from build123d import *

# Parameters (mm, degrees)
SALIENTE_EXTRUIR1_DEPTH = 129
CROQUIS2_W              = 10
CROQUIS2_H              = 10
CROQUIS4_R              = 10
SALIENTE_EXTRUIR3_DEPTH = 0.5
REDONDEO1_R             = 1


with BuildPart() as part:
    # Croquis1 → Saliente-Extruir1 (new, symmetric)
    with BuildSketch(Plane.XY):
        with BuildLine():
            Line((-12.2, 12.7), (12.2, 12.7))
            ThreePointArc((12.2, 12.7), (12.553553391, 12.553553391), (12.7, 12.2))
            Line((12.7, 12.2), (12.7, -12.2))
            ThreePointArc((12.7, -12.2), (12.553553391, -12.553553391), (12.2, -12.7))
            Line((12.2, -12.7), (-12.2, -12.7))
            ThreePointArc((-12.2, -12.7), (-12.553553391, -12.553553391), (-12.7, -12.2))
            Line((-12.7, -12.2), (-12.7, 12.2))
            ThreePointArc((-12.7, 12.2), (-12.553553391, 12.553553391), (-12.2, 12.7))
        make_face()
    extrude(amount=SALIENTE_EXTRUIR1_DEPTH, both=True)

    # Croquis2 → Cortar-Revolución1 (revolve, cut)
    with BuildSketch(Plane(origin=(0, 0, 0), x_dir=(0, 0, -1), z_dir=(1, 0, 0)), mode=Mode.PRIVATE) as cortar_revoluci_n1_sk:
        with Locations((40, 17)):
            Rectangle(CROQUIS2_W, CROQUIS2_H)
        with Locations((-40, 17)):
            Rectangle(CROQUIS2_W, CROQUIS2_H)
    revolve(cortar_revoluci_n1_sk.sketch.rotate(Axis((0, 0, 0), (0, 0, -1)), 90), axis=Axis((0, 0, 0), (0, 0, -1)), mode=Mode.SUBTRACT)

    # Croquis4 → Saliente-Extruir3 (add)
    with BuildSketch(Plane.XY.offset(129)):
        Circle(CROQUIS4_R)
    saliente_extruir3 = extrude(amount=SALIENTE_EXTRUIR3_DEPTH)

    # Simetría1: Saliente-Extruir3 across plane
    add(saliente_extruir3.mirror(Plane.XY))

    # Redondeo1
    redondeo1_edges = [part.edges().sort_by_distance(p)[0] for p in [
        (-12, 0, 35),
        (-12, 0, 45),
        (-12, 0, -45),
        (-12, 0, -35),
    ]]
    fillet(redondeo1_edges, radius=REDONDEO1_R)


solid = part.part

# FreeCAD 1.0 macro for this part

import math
import FreeCAD as App
import Part
import Sketcher
from FreeCAD import Vector


def edges_at(feature, points):
    """Names of the edges that pass closest to the given points."""
    edges = feature.Shape.Edges
    near = lambda p: min(range(len(edges)), key=lambda i: edges[i].distToShape(Part.Vertex(*p))[0])
    return sorted({f"Edge{near(p) + 1}" for p in points})

doc = App.newDocument("Part")
body = doc.addObject("PartDesign::Body", "Body")

# Sketch on XY plane
sketch1 = body.newObject("Sketcher::SketchObject", "Sketch")
sketch1.AttachmentSupport = (doc.getObject("XY_Plane"), [""])
sketch1.MapMode = "FlatFace"
sketch1.addGeometry(Part.LineSegment(Vector(12.2, 12.7, 0), Vector(-12.2, 12.7, 0)), False)
sketch1.addGeometry(Part.ArcOfCircle(Part.Circle(Vector(-12.2, 12.2, 0), Vector(0, 0, 1), 0.5), math.radians(90), math.radians(180)), False)
sketch1.addGeometry(Part.LineSegment(Vector(-12.7, 12.2, 0), Vector(-12.7, -12.2, 0)), False)
sketch1.addGeometry(Part.ArcOfCircle(Part.Circle(Vector(-12.2, -12.2, 0), Vector(0, 0, 1), 0.5), math.radians(180), math.radians(270)), False)
sketch1.addGeometry(Part.LineSegment(Vector(-12.2, -12.7, 0), Vector(12.2, -12.7, 0)), False)
sketch1.addGeometry(Part.ArcOfCircle(Part.Circle(Vector(12.2, -12.2, 0), Vector(0, 0, 1), 0.5), math.radians(-90), math.radians(0)), False)
sketch1.addGeometry(Part.LineSegment(Vector(12.7, -12.2, 0), Vector(12.7, 12.2, 0)), False)
sketch1.addGeometry(Part.ArcOfCircle(Part.Circle(Vector(12.2, 12.2, 0), Vector(0, 0, 1), 0.5), math.radians(0), math.radians(90)), False)
sketch1.addConstraint(Sketcher.Constraint("Tangent", 0, 2, 1, 1))
sketch1.addConstraint(Sketcher.Constraint("Tangent", 1, 2, 2, 1))
sketch1.addConstraint(Sketcher.Constraint("Tangent", 2, 2, 3, 1))
sketch1.addConstraint(Sketcher.Constraint("Tangent", 3, 2, 4, 1))
sketch1.addConstraint(Sketcher.Constraint("Tangent", 4, 2, 5, 1))
sketch1.addConstraint(Sketcher.Constraint("Tangent", 5, 2, 6, 1))
sketch1.addConstraint(Sketcher.Constraint("Tangent", 6, 2, 7, 1))
sketch1.addConstraint(Sketcher.Constraint("Tangent", 7, 2, 0, 1))
sketch1.addConstraint(Sketcher.Constraint("Horizontal", 0))
sketch1.addConstraint(Sketcher.Constraint("Vertical", 2))
sketch1.addConstraint(Sketcher.Constraint("Horizontal", 4))
sketch1.addConstraint(Sketcher.Constraint("Vertical", 6))
sketch1.addConstraint(Sketcher.Constraint("Equal", 1, 3))
sketch1.addConstraint(Sketcher.Constraint("Equal", 3, 5))
sketch1.addConstraint(Sketcher.Constraint("Equal", 5, 7))
sketch1.addConstraint(Sketcher.Constraint("Symmetric", 1, 3, 5, 3, -1, 1))
sketch1.addConstraint(Sketcher.Constraint("Equal", 4, 2))
sketch1.addConstraint(Sketcher.Constraint("Radius", 1, 0.5))
sketch1.addConstraint(Sketcher.Constraint("DistanceX", 0, 2, 0, 1, 24.4))
pad1 = body.newObject("PartDesign::Pad", "Pad")
pad1.Profile = sketch1
pad1.Length = 258
pad1.Midplane = True

# Sketch on YZ plane
sketch2 = body.newObject("Sketcher::SketchObject", "Sketch001")
sketch2.AttachmentSupport = (doc.getObject("YZ_Plane"), [""])
sketch2.MapMode = "FlatFace"
sketch2.addGeometry(Part.LineSegment(Vector(22, -35, 0), Vector(12, -35, 0)), False)
sketch2.addGeometry(Part.LineSegment(Vector(12, -35, 0), Vector(12, -45, 0)), False)
sketch2.addGeometry(Part.LineSegment(Vector(12, -45, 0), Vector(22, -45, 0)), False)
sketch2.addGeometry(Part.LineSegment(Vector(22, -45, 0), Vector(22, -35, 0)), False)
sketch2.addGeometry(Part.LineSegment(Vector(22, 45, 0), Vector(12, 45, 0)), False)
sketch2.addGeometry(Part.LineSegment(Vector(12, 45, 0), Vector(12, 35, 0)), False)
sketch2.addGeometry(Part.LineSegment(Vector(12, 35, 0), Vector(22, 35, 0)), False)
sketch2.addGeometry(Part.LineSegment(Vector(22, 35, 0), Vector(22, 45, 0)), False)
sketch2.addConstraint(Sketcher.Constraint("Coincident", 0, 2, 1, 1))
sketch2.addConstraint(Sketcher.Constraint("Coincident", 1, 2, 2, 1))
sketch2.addConstraint(Sketcher.Constraint("Coincident", 2, 2, 3, 1))
sketch2.addConstraint(Sketcher.Constraint("Coincident", 3, 2, 0, 1))
sketch2.addConstraint(Sketcher.Constraint("Coincident", 4, 2, 5, 1))
sketch2.addConstraint(Sketcher.Constraint("Coincident", 5, 2, 6, 1))
sketch2.addConstraint(Sketcher.Constraint("Coincident", 6, 2, 7, 1))
sketch2.addConstraint(Sketcher.Constraint("Coincident", 7, 2, 4, 1))
sketch2.addConstraint(Sketcher.Constraint("Horizontal", 0))
sketch2.addConstraint(Sketcher.Constraint("Vertical", 1))
sketch2.addConstraint(Sketcher.Constraint("Horizontal", 2))
sketch2.addConstraint(Sketcher.Constraint("Vertical", 3))
sketch2.addConstraint(Sketcher.Constraint("Horizontal", 4))
sketch2.addConstraint(Sketcher.Constraint("Vertical", 5))
sketch2.addConstraint(Sketcher.Constraint("Horizontal", 6))
sketch2.addConstraint(Sketcher.Constraint("Vertical", 7))
sketch2.addConstraint(Sketcher.Constraint("Symmetric", 1, 2, 4, 2, -1))
sketch2.addConstraint(Sketcher.Constraint("Symmetric", 3, 2, 6, 2, -1))
sketch2.addConstraint(Sketcher.Constraint("Equal", 6, 1))
sketch2.addConstraint(Sketcher.Constraint("DistanceX", 0, 2, 0, 1, 10.0))
sketch2.addConstraint(Sketcher.Constraint("DistanceX", -1, 1, 0, 2, 12.0))
sketch2.addConstraint(Sketcher.Constraint("DistanceY", 0, 2, -1, 1, 35.0))
groove = body.newObject("PartDesign::Groove", "Groove")
groove.Profile = sketch2
groove.ReferenceAxis = (sketch2, ["V_Axis"])
groove.Angle = 360

# Sketch on XY plane
sketch3 = body.newObject("Sketcher::SketchObject", "Sketch002")
sketch3.AttachmentSupport = (doc.getObject("XY_Plane"), [""])
sketch3.MapMode = "FlatFace"
sketch3.AttachmentOffset = App.Placement(Vector(0, 0, 129), App.Rotation())
sketch3.addGeometry(Part.Circle(Vector(0, 0, 0), Vector(0, 0, 1), 10), False)
sketch3.addConstraint(Sketcher.Constraint("Coincident", 0, 3, -1, 1))
sketch3.addConstraint(Sketcher.Constraint("Diameter", 0, 20.0))
pad2 = body.newObject("PartDesign::Pad", "Pad001")
pad2.Profile = sketch3
pad2.Length = 0.5
doc.recompute()

mirrored = body.newObject("PartDesign::Mirrored", "Mirrored")
mirrored.Originals = [pad2]
mirrored.MirrorPlane = (doc.getObject("XY_Plane"), [""])
body.Tip = mirrored
doc.recompute()

fillet = body.newObject("PartDesign::Fillet", "Fillet")
fillet.Base = (mirrored, edges_at(mirrored, [
    (-12, 0, 35),
    (-12, 0, 45),
    (-12, 0, -45),
    (-12, 0, -35),
]))
fillet.Radius = 1

doc.recompute()
